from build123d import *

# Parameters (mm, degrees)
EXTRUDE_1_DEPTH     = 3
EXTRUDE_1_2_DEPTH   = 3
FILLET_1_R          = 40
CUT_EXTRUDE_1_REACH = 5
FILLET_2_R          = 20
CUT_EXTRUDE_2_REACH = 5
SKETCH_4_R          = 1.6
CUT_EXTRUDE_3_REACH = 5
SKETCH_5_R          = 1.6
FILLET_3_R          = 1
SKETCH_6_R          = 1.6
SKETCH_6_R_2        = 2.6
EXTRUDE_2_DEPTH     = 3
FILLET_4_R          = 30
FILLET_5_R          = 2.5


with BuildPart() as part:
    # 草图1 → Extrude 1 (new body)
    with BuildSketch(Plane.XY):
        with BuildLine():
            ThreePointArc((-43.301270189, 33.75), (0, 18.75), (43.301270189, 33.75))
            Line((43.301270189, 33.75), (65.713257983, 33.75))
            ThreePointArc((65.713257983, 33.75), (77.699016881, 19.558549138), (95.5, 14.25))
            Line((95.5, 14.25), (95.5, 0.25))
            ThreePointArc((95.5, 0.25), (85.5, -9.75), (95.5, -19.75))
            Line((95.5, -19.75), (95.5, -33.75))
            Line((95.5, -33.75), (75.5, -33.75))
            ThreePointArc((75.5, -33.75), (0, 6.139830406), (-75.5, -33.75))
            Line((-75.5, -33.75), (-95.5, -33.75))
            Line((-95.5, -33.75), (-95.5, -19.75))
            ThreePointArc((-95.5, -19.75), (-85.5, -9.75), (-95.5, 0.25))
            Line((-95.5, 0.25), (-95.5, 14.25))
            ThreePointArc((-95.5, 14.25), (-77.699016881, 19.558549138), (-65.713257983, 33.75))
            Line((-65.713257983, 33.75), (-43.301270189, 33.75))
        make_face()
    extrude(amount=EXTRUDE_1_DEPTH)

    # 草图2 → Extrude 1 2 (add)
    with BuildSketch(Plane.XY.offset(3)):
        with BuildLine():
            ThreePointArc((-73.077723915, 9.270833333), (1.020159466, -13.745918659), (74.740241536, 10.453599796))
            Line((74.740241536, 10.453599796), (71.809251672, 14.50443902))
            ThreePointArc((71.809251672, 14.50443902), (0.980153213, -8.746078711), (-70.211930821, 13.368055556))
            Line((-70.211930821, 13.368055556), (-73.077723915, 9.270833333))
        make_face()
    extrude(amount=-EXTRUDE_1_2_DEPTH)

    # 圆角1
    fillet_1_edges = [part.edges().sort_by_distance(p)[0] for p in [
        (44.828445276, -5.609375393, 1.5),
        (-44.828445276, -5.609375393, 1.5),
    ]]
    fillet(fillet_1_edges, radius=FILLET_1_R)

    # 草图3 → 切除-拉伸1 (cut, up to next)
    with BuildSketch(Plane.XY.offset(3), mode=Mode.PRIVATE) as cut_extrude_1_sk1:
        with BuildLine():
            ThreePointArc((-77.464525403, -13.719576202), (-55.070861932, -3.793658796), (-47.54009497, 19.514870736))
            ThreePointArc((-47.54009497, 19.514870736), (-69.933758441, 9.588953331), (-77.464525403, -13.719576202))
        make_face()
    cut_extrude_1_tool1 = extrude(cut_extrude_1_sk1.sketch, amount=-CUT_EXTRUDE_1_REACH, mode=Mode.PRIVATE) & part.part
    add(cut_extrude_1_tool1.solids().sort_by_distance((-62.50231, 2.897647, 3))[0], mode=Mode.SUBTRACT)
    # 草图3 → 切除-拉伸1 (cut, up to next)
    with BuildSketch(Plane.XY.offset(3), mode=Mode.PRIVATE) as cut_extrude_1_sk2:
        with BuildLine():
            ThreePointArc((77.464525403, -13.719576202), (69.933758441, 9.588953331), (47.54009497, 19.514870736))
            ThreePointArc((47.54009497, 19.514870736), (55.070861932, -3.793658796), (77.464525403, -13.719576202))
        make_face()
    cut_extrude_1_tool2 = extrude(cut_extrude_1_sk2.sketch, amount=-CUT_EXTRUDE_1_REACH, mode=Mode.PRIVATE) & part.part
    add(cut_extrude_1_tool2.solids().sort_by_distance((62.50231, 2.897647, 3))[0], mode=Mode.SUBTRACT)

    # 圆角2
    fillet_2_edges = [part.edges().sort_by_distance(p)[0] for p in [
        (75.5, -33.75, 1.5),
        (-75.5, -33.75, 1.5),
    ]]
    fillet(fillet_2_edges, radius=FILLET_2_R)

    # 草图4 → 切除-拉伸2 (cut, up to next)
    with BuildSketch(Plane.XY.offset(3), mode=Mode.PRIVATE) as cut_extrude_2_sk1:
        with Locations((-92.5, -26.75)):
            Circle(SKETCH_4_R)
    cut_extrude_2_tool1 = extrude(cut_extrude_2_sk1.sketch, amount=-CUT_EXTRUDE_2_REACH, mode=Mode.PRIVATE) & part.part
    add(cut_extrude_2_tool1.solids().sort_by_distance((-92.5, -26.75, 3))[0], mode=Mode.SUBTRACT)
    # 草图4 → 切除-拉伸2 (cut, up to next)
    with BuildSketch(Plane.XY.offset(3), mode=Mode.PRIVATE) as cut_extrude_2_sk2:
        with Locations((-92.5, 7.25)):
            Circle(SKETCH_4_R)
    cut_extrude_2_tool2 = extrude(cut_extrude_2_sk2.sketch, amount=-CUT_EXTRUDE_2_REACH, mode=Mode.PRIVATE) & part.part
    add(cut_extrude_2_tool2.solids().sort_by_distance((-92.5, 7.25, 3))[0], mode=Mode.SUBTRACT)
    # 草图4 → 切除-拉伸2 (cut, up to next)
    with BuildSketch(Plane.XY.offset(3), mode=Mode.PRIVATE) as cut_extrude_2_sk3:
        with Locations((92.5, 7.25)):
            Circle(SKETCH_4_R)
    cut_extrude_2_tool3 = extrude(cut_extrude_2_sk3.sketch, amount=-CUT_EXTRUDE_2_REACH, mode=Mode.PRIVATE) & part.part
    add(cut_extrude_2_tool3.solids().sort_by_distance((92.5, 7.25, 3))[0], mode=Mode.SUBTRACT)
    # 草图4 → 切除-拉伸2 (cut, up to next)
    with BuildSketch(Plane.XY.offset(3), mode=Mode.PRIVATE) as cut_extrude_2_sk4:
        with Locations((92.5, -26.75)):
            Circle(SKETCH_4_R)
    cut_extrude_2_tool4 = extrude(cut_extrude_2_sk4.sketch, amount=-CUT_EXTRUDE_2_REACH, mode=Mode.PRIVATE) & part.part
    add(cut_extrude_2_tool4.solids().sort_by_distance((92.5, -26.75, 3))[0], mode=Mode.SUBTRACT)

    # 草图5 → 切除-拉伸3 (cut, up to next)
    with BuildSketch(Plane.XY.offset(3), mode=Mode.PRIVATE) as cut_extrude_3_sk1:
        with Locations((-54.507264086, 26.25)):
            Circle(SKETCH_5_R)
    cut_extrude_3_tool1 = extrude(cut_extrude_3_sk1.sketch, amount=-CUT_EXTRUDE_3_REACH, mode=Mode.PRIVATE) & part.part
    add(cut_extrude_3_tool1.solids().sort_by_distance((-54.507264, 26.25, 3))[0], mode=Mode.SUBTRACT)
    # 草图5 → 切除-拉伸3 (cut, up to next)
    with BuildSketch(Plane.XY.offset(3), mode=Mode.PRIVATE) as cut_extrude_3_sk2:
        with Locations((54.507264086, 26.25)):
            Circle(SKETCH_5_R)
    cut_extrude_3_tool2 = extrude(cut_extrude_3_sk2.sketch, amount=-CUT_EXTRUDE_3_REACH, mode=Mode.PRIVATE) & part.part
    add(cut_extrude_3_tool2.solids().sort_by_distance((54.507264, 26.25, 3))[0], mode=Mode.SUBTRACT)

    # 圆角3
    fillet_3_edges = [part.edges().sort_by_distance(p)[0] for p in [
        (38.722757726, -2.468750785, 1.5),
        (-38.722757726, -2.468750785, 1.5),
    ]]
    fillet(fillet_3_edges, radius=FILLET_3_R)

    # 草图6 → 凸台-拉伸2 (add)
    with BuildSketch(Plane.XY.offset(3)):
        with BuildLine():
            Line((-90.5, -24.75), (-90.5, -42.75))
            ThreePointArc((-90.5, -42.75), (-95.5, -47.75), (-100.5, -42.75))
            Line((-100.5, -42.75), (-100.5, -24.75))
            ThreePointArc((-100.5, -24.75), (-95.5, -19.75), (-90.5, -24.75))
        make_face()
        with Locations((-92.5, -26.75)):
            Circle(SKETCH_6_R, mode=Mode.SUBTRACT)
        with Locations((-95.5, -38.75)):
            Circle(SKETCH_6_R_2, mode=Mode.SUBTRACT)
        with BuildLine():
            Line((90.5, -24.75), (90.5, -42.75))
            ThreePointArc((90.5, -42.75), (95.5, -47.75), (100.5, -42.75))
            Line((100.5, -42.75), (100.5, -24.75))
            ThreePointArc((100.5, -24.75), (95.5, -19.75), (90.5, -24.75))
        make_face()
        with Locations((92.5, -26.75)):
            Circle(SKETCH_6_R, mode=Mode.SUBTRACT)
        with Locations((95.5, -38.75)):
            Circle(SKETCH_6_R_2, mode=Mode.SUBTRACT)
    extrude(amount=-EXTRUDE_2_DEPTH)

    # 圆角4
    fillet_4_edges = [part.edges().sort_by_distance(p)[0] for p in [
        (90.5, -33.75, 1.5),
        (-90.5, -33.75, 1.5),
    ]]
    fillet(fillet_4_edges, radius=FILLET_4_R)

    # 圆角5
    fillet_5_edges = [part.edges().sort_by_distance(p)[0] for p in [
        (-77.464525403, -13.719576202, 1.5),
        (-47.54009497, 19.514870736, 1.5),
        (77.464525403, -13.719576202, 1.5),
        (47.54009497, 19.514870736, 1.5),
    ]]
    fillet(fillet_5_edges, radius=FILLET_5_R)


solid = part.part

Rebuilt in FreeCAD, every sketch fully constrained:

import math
import FreeCAD as App
import Part
import Sketcher

V = App.Vector
Q = App.Units.Quantity


def edges_at(feature, points):
    """Names of the edges that pass closest to the given points."""
    edges = feature.Shape.Edges
    near = lambda p: min(range(len(edges)), key=lambda i: edges[i].distToShape(Part.Vertex(*p))[0])
    return sorted({f"Edge{near(p) + 1}" for p in points})

doc = App.newDocument("Part")
body = doc.addObject("PartDesign::Body", "Body")

# Sketch on XY plane
sketch1 = body.newObject("Sketcher::SketchObject", "Sketch")
sketch1.AttachmentSupport = (doc.getObject("XY_Plane"), [""])
sketch1.MapMode = "FlatFace"
sketch1.addGeometry([
    Part.ArcOfCircle(Part.Circle(V(0, 88.75, 0), V(0, 0, 1), 70), math.radians(-128.213211), math.radians(-51.786789)),  # 0
    Part.LineSegment(V(-43.30127, 33.75, 0), V(-65.713258, 33.75, 0)),  # 1
    Part.ArcOfCircle(Part.Circle(V(-95.5, 46.75, 0), V(0, 0, 1), 32.5), math.radians(-90), math.radians(-23.578178)),  # 2
    Part.LineSegment(V(-95.5, 14.25, 0), V(-95.5, 0.25, 0)),  # 3
    Part.ArcOfCircle(Part.Circle(V(-95.5, -9.75, 0), V(0, 0, 1), 10), math.radians(-90), math.radians(90)),  # 4
    Part.LineSegment(V(-95.5, -19.75, 0), V(-95.5, -33.75, 0)),  # 5
    Part.LineSegment(V(-95.5, -33.75, 0), V(-75.5, -33.75, 0)),  # 6
    Part.ArcOfCircle(Part.Circle(V(0, -85.255, 0), V(0, 0, 1), 91.39483), math.radians(34.301239), math.radians(145.698761)),  # 7
    Part.LineSegment(V(75.5, -33.75, 0), V(95.5, -33.75, 0)),  # 8
    Part.LineSegment(V(95.5, -33.75, 0), V(95.5, -19.75, 0)),  # 9
    Part.ArcOfCircle(Part.Circle(V(95.5, -9.75, 0), V(0, 0, 1), 10), math.radians(90), math.radians(270)),  # 10
    Part.LineSegment(V(95.5, 0.25, 0), V(95.5, 14.25, 0)),  # 11
    Part.ArcOfCircle(Part.Circle(V(95.5, 46.75, 0), V(0, 0, 1), 32.5), math.radians(-156.421822), math.radians(-90)),  # 12
    Part.LineSegment(V(65.713258, 33.75, 0), V(43.30127, 33.75, 0)),  # 13
], False)
sketch1.addConstraint([
    Sketcher.Constraint("Coincident", 0, 1, 1, 1),
    Sketcher.Constraint("Coincident", 1, 2, 2, 2),
    Sketcher.Constraint("Coincident", 2, 1, 3, 1),
    Sketcher.Constraint("Coincident", 3, 2, 4, 2),
    Sketcher.Constraint("Coincident", 4, 1, 5, 1),
    Sketcher.Constraint("Coincident", 5, 2, 6, 1),
    Sketcher.Constraint("Coincident", 6, 2, 7, 2),
    Sketcher.Constraint("Coincident", 7, 1, 8, 1),
    Sketcher.Constraint("Coincident", 8, 2, 9, 1),
    Sketcher.Constraint("Coincident", 9, 2, 10, 2),
    Sketcher.Constraint("Coincident", 10, 1, 11, 1),
    Sketcher.Constraint("Coincident", 11, 2, 12, 2),
    Sketcher.Constraint("Coincident", 12, 1, 13, 1),
    Sketcher.Constraint("Coincident", 13, 2, 0, 2),
    Sketcher.Constraint("Horizontal", 1),
    Sketcher.Constraint("Vertical", 3),
    Sketcher.Constraint("Vertical", 5),
    Sketcher.Constraint("Horizontal", 6),
    Sketcher.Constraint("Horizontal", 8),
    Sketcher.Constraint("Vertical", 9),
    Sketcher.Constraint("Vertical", 11),
    Sketcher.Constraint("Horizontal", 13),
    Sketcher.Constraint("Equal", 4, 10),
    Sketcher.Constraint("Equal", 2, 12),
    Sketcher.Constraint("Symmetric", 4, 3, 10, 3, -2),
    Sketcher.Constraint("Symmetric", 2, 3, 12, 3, -2),
    Sketcher.Constraint("Symmetric", 6, 2, 7, 1, -2),
    Sketcher.Constraint("Symmetric", 0, 1, 13, 2, -2),
    Sketcher.Constraint("Vertical", 2, 3, 4, 3),
    Sketcher.Constraint("Vertical", 4, 3, 2, 1),
    Sketcher.Constraint("Vertical", 3, 2, 4, 1),
    Sketcher.Constraint("Vertical", 12, 3, 8, 2),
    Sketcher.Constraint("Vertical", 9, 2, 10, 1),
    Sketcher.Constraint("Equal", 3, 5),
    Sketcher.Constraint("Radius", 0, Q("70 mm")),
    Sketcher.Constraint("Radius", 4, Q("10 mm")),
    Sketcher.Constraint("Radius", 2, Q("32.5 mm")),
    Sketcher.Constraint("DistanceX", 6, 1, 6, 2, Q("20 mm")),
    Sketcher.Constraint("DistanceY", 3, 2, 3, 1, Q("14 mm")),
    Sketcher.Constraint("DistanceY", 2, 3, 0, 3, Q("42 mm")),
    Sketcher.Constraint("DistanceX", 4, 3, 10, 3, Q("191 mm")),
    Sketcher.Constraint("DistanceY", 0, 1, 2, 3, Q("13 mm")),
    Sketcher.Constraint("DistanceY", -1, 1, 0, 3, Q("88.75 mm")),
    Sketcher.Constraint("Radius", 7, Q("91.39483 mm")),
])
pad1 = body.newObject("PartDesign::Pad", "Pad")
pad1.Profile = sketch1
pad1.Length = 3

# Sketch on XY plane
sketch2 = body.newObject("Sketcher::SketchObject", "Sketch001")
sketch2.AttachmentSupport = (doc.getObject("XY_Plane"), [""])
sketch2.MapMode = "FlatFace"
sketch2.AttachmentOffset = App.Placement(V(0, 0, 3), App.Rotation())
sketch2.addGeometry([
    Part.ArcOfCircle(Part.Circle(V(0, 113.75, 0), V(0, 0, 1), 127.5), math.radians(-124.970781), math.radians(-54.112334)),
    Part.LineSegment(V(74.740242, 10.4536, 0), V(71.809252, 14.504439, 0)),
    Part.ArcOfCircle(Part.Circle(V(0, 113.75, 0), V(0, 0, 1), 122.5), math.radians(-124.970781), math.radians(-54.112334)),
    Part.LineSegment(V(-70.211931, 13.368056, 0), V(-73.077724, 9.270833, 0)),
], False)
sketch2.addConstraint([
    Sketcher.Constraint("Coincident", 0, 2, 1, 1),
    Sketcher.Constraint("Coincident", 1, 2, 2, 2),
    Sketcher.Constraint("Coincident", 2, 1, 3, 1),
    Sketcher.Constraint("Coincident", 3, 2, 0, 1),
    Sketcher.Constraint("Coincident", 2, 3, 0, 3),
    Sketcher.Constraint("PointOnObject", 0, 3, -2),
    Sketcher.Constraint("Radius", 0, Q("127.5 mm")),
    Sketcher.Constraint("Radius", 2, Q("122.5 mm")),
    Sketcher.Constraint("DistanceY", -1, 1, 0, 3, Q("113.75 mm")),
    Sketcher.Constraint("DistanceY", -1, 1, 0, 2, Q("10.4536 mm")),
    Sketcher.Constraint("DistanceX", -1, 1, 1, 2, Q("71.809252 mm")),
    Sketcher.Constraint("DistanceX", 2, 1, -1, 1, Q("70.211931 mm")),
    Sketcher.Constraint("DistanceX", 3, 2, -1, 1, Q("73.077724 mm")),
])
pad2 = body.newObject("PartDesign::Pad", "Pad001")
pad2.Profile = sketch2
pad2.Length = 3
pad2.Reversed = True
doc.recompute()

fillet = body.newObject("PartDesign::Fillet", "Fillet")
fillet.Base = (pad2, edges_at(pad2, [(44.828, -5.609, 1.5), (-44.828, -5.609, 1.5)]))
fillet.Radius = 40

# Sketch on XY plane
sketch3 = body.newObject("Sketcher::SketchObject", "Sketch002")
sketch3.AttachmentSupport = (doc.getObject("XY_Plane"), [""])
sketch3.MapMode = "FlatFace"
sketch3.AttachmentOffset = App.Placement(V(0, 0, 3), App.Rotation())
sketch3.addGeometry([
    Part.ArcOfCircle(Part.Circle(V(-77.365207, 16.280259, 0), V(0, 0, 1), 30), math.radians(-90.189685), math.radians(6.189685)),
    Part.ArcOfCircle(Part.Circle(V(-47.639414, -10.484965, 0), V(0, 0, 1), 30), math.radians(89.810315), math.radians(186.189685)),
], False)
sketch3.addConstraint([
    Sketcher.Constraint("Coincident", 0, 1, 1, 2),
    Sketcher.Constraint("Coincident", 1, 1, 0, 2),
    Sketcher.Constraint("Equal", 0, 1),
    Sketcher.Constraint("Radius", 0, Q("30 mm")),
    Sketcher.Constraint("DistanceY", -1, 1, 0, 3, Q("16.280259 mm")),
    Sketcher.Constraint("DistanceY", -1, 1, 1, 1, Q("19.514871 mm")),
    Sketcher.Constraint("DistanceX", 0, 1, 0, 3, Q("0.099319 mm")),
    Sketcher.Constraint("DistanceX", 0, 3, -1, 1, Q("77.365207 mm")),
])
pocket1 = body.newObject("PartDesign::Pocket", "Pocket")
pocket1.Profile = sketch3
pocket1.Type = "UpToFirst"

# Sketch on XY plane
sketch4 = body.newObject("Sketcher::SketchObject", "Sketch003")
sketch4.AttachmentSupport = (doc.getObject("XY_Plane"), [""])
sketch4.MapMode = "FlatFace"
sketch4.AttachmentOffset = App.Placement(V(0, 0, 3), App.Rotation())
sketch4.addGeometry([
    Part.ArcOfCircle(Part.Circle(V(47.639414, -10.484965, 0), V(0, 0, 1), 30), math.radians(-6.189685), math.radians(90.189685)),
    Part.ArcOfCircle(Part.Circle(V(77.365207, 16.280259, 0), V(0, 0, 1), 30), math.radians(173.810315), math.radians(270.189685)),
], False)
sketch4.addConstraint([
    Sketcher.Constraint("Coincident", 0, 1, 1, 2),
    Sketcher.Constraint("Coincident", 1, 1, 0, 2),
    Sketcher.Constraint("Equal", 0, 1),
    Sketcher.Constraint("Radius", 0, Q("30 mm")),
    Sketcher.Constraint("DistanceY", -1, 1, 1, 3, Q("16.280259 mm")),
    Sketcher.Constraint("DistanceY", -1, 1, 1, 1, Q("19.514871 mm")),
    Sketcher.Constraint("DistanceX", 1, 3, 0, 1, Q("0.099319 mm")),
    Sketcher.Constraint("DistanceX", -1, 1, 0, 3, Q("47.639414 mm")),
])
pocket2 = body.newObject("PartDesign::Pocket", "Pocket001")
pocket2.Profile = sketch4
pocket2.Type = "UpToFirst"
doc.recompute()

fillet2 = body.newObject("PartDesign::Fillet", "Fillet001")
fillet2.Base = (pocket2, edges_at(pocket2, [(75.5, -33.75, 1.5), (-75.5, -33.75, 1.5)]))
fillet2.Radius = 20

# Sketch on XY plane
sketch5 = body.newObject("Sketcher::SketchObject", "Sketch004")
sketch5.AttachmentSupport = (doc.getObject("XY_Plane"), [""])
sketch5.MapMode = "FlatFace"
sketch5.AttachmentOffset = App.Placement(V(0, 0, 3), App.Rotation())
sketch5.addGeometry(Part.Circle(V(-92.5, -26.75, 0), V(0, 0, 1), 1.6), False)
sketch5.addConstraint([
    Sketcher.Constraint("Diameter", 0, Q("3.2 mm")),
    Sketcher.Constraint("DistanceX", 0, 3, -1, 1, Q("92.5 mm")),
    Sketcher.Constraint("DistanceY", 0, 3, -1, 1, Q("26.75 mm")),
])
pocket3 = body.newObject("PartDesign::Pocket", "Pocket002")
pocket3.Profile = sketch5
pocket3.Type = "UpToFirst"

# Sketch on XY plane
sketch6 = body.newObject("Sketcher::SketchObject", "Sketch005")
sketch6.AttachmentSupport = (doc.getObject("XY_Plane"), [""])
sketch6.MapMode = "FlatFace"
sketch6.AttachmentOffset = App.Placement(V(0, 0, 3), App.Rotation())
sketch6.addGeometry(Part.Circle(V(-92.5, 7.25, 0), V(0, 0, 1), 1.6), False)
sketch6.addConstraint([
    Sketcher.Constraint("Diameter", 0, Q("3.2 mm")),
    Sketcher.Constraint("DistanceX", 0, 3, -1, 1, Q("92.5 mm")),
    Sketcher.Constraint("DistanceY", -1, 1, 0, 3, Q("7.25 mm")),
])
pocket4 = body.newObject("PartDesign::Pocket", "Pocket003")
pocket4.Profile = sketch6
pocket4.Type = "UpToFirst"

# Sketch on XY plane
sketch7 = body.newObject("Sketcher::SketchObject", "Sketch006")
sketch7.AttachmentSupport = (doc.getObject("XY_Plane"), [""])
sketch7.MapMode = "FlatFace"
sketch7.AttachmentOffset = App.Placement(V(0, 0, 3), App.Rotation())
sketch7.addGeometry(Part.Circle(V(92.5, 7.25, 0), V(0, 0, 1), 1.6), False)
sketch7.addConstraint([
    Sketcher.Constraint("Diameter", 0, Q("3.2 mm")),
    Sketcher.Constraint("DistanceX", -1, 1, 0, 3, Q("92.5 mm")),
    Sketcher.Constraint("DistanceY", -1, 1, 0, 3, Q("7.25 mm")),
])
pocket5 = body.newObject("PartDesign::Pocket", "Pocket004")
pocket5.Profile = sketch7
pocket5.Type = "UpToFirst"

# Sketch on XY plane
sketch8 = body.newObject("Sketcher::SketchObject", "Sketch007")
sketch8.AttachmentSupport = (doc.getObject("XY_Plane"), [""])
sketch8.MapMode = "FlatFace"
sketch8.AttachmentOffset = App.Placement(V(0, 0, 3), App.Rotation())
sketch8.addGeometry(Part.Circle(V(92.5, -26.75, 0), V(0, 0, 1), 1.6), False)
sketch8.addConstraint([
    Sketcher.Constraint("Diameter", 0, Q("3.2 mm")),
    Sketcher.Constraint("DistanceX", -1, 1, 0, 3, Q("92.5 mm")),
    Sketcher.Constraint("DistanceY", 0, 3, -1, 1, Q("26.75 mm")),
])
pocket6 = body.newObject("PartDesign::Pocket", "Pocket005")
pocket6.Profile = sketch8
pocket6.Type = "UpToFirst"

# Sketch on XY plane
sketch9 = body.newObject("Sketcher::SketchObject", "Sketch008")
sketch9.AttachmentSupport = (doc.getObject("XY_Plane"), [""])
sketch9.MapMode = "FlatFace"
sketch9.AttachmentOffset = App.Placement(V(0, 0, 3), App.Rotation())
sketch9.addGeometry(Part.Circle(V(-54.507264, 26.25, 0), V(0, 0, 1), 1.6), False)
sketch9.addConstraint([
    Sketcher.Constraint("Diameter", 0, Q("3.2 mm")),
    Sketcher.Constraint("DistanceY", -1, 1, 0, 3, Q("26.25 mm")),
    Sketcher.Constraint("DistanceX", 0, 3, -1, 1, Q("54.507264 mm")),
])
pocket7 = body.newObject("PartDesign::Pocket", "Pocket006")
pocket7.Profile = sketch9
pocket7.Type = "UpToFirst"

# Sketch on XY plane
sketch10 = body.newObject("Sketcher::SketchObject", "Sketch009")
sketch10.AttachmentSupport = (doc.getObject("XY_Plane"), [""])
sketch10.MapMode = "FlatFace"
sketch10.AttachmentOffset = App.Placement(V(0, 0, 3), App.Rotation())
sketch10.addGeometry(Part.Circle(V(54.507264, 26.25, 0), V(0, 0, 1), 1.6), False)
sketch10.addConstraint([
    Sketcher.Constraint("Diameter", 0, Q("3.2 mm")),
    Sketcher.Constraint("DistanceY", -1, 1, 0, 3, Q("26.25 mm")),
    Sketcher.Constraint("DistanceX", -1, 1, 0, 3, Q("54.507264 mm")),
])
pocket8 = body.newObject("PartDesign::Pocket", "Pocket007")
pocket8.Profile = sketch10
pocket8.Type = "UpToFirst"
doc.recompute()

fillet3 = body.newObject("PartDesign::Fillet", "Fillet002")
fillet3.Base = (pocket8, edges_at(pocket8, [(38.723, -2.469, 1.5), (-38.723, -2.469, 1.5)]))
fillet3.Radius = 1

# Sketch on XY plane
sketch11 = body.newObject("Sketcher::SketchObject", "Sketch010")
sketch11.AttachmentSupport = (doc.getObject("XY_Plane"), [""])
sketch11.MapMode = "FlatFace"
sketch11.AttachmentOffset = App.Placement(V(0, 0, 3), App.Rotation())
sketch11.addGeometry([
    Part.LineSegment(V(-90.5, -42.75, 0), V(-90.5, -24.75, 0)),  # 0
    Part.ArcOfCircle(Part.Circle(V(-95.5, -24.75, 0), V(0, 0, 1), 5), math.radians(0), math.radians(180)),  # 1
    Part.LineSegment(V(-100.5, -24.75, 0), V(-100.5, -42.75, 0)),  # 2
    Part.ArcOfCircle(Part.Circle(V(-95.5, -42.75, 0), V(0, 0, 1), 5), math.radians(180), math.radians(360)),  # 3
    Part.Circle(V(-95.5, -38.75, 0), V(0, 0, 1), 2.6),  # 4
    Part.Circle(V(-92.5, -26.75, 0), V(0, 0, 1), 1.6),  # 5
    Part.LineSegment(V(90.5, -24.75, 0), V(90.5, -42.75, 0)),  # 6
    Part.ArcOfCircle(Part.Circle(V(95.5, -42.75, 0), V(0, 0, 1), 5), math.radians(180), math.radians(360)),  # 7
    Part.LineSegment(V(100.5, -42.75, 0), V(100.5, -24.75, 0)),  # 8
    Part.ArcOfCircle(Part.Circle(V(95.5, -24.75, 0), V(0, 0, 1), 5), math.radians(0), math.radians(180)),  # 9
    Part.Circle(V(95.5, -38.75, 0), V(0, 0, 1), 2.6),  # 10
    Part.Circle(V(92.5, -26.75, 0), V(0, 0, 1), 1.6),  # 11
], False)
sketch11.addConstraint([
    Sketcher.Constraint("Tangent", 0, 2, 1, 1),
    Sketcher.Constraint("Tangent", 1, 2, 2, 1),
    Sketcher.Constraint("Tangent", 2, 2, 3, 1),
    Sketcher.Constraint("Tangent", 3, 2, 0, 1),
    Sketcher.Constraint("Tangent", 6, 2, 7, 1),
    Sketcher.Constraint("Tangent", 7, 2, 8, 1),
    Sketcher.Constraint("Tangent", 8, 2, 9, 1),
    Sketcher.Constraint("Tangent", 9, 2, 6, 1),
    Sketcher.Constraint("Vertical", 0),
    Sketcher.Constraint("Vertical", 2),
    Sketcher.Constraint("Vertical", 6),
    Sketcher.Constraint("Vertical", 8),
    Sketcher.Constraint("Equal", 3, 7),
    Sketcher.Constraint("Equal", 4, 10),
    Sketcher.Constraint("Equal", 5, 11),
    Sketcher.Constraint("Symmetric", 3, 3, 7, 3, -2),
    Sketcher.Constraint("Symmetric", 4, 3, 10, 3, -2),
    Sketcher.Constraint("Symmetric", 5, 3, 11, 3, -2),
    Sketcher.Constraint("Horizontal", 1, 3, 9, 3),
    Sketcher.Constraint("Vertical", 3, 3, 4, 3),
    Sketcher.Constraint("Radius", 1, Q("5 mm")),
    Sketcher.Constraint("Diameter", 4, Q("5.2 mm")),
    Sketcher.Constraint("Diameter", 5, Q("3.2 mm")),
    Sketcher.Constraint("DistanceY", 0, 1, 0, 2, Q("18 mm")),
    Sketcher.Constraint("DistanceY", 3, 3, 4, 3, Q("4 mm")),
    Sketcher.Constraint("DistanceX", 1, 3, 5, 3, Q("3 mm")),
    Sketcher.Constraint("DistanceY", 5, 3, 1, 3, Q("2 mm")),
    Sketcher.Constraint("DistanceX", 5, 3, 7, 3, Q("188 mm")),
    Sketcher.Constraint("DistanceY", 1, 3, -1, 1, Q("24.75 mm")),
])
pad3 = body.newObject("PartDesign::Pad", "Pad002")
pad3.Profile = sketch11
pad3.Length = 3
pad3.Reversed = True
doc.recompute()

fillet4 = body.newObject("PartDesign::Fillet", "Fillet003")
fillet4.Base = (pad3, edges_at(pad3, [(90.5, -33.75, 1.5), (-90.5, -33.75, 1.5)]))
fillet4.Radius = 30
doc.recompute()

fillet5 = body.newObject("PartDesign::Fillet", "Fillet004")
fillet5.Base = (fillet4, edges_at(fillet4, [
    (-77.465, -13.72, 1.5),
    (-47.54, 19.515, 1.5),
    (77.465, -13.72, 1.5),
    (47.54, 19.515, 1.5),
]))
fillet5.Radius = 2.5

doc.recompute()
